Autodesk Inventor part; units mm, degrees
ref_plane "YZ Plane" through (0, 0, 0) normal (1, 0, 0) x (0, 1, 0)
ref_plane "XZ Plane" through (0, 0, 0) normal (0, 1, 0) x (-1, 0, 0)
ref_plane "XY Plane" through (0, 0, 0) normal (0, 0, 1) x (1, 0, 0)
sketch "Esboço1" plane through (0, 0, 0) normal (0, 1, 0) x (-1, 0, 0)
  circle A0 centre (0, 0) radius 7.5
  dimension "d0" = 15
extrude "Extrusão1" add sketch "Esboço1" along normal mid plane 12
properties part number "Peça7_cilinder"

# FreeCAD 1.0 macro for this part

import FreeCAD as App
import Part
import Sketcher
from FreeCAD import Vector

doc = App.newDocument("Part")
body = doc.addObject("PartDesign::Body", "Body")

sketch1 = body.newObject("Sketcher::SketchObject", "Sketch")
sketch1.AttachmentSupport = (doc.getObject("XZ_Plane"), [""])
sketch1.MapMode = "FlatFace"
sketch1.addGeometry(Part.Circle(Vector(0, 0, 0), Vector(0, 0, 1), 8), False)
sketch1.addConstraint([
    Sketcher.Constraint("Coincident", 0, 3, -1, 1),
    Sketcher.Constraint("Diameter", 0, 15.0),
])
pad1 = body.newObject("PartDesign::Pad", "Pad")
pad1.Profile = sketch1
pad1.Length = 12
pad1.Midplane = True

doc.recompute()
